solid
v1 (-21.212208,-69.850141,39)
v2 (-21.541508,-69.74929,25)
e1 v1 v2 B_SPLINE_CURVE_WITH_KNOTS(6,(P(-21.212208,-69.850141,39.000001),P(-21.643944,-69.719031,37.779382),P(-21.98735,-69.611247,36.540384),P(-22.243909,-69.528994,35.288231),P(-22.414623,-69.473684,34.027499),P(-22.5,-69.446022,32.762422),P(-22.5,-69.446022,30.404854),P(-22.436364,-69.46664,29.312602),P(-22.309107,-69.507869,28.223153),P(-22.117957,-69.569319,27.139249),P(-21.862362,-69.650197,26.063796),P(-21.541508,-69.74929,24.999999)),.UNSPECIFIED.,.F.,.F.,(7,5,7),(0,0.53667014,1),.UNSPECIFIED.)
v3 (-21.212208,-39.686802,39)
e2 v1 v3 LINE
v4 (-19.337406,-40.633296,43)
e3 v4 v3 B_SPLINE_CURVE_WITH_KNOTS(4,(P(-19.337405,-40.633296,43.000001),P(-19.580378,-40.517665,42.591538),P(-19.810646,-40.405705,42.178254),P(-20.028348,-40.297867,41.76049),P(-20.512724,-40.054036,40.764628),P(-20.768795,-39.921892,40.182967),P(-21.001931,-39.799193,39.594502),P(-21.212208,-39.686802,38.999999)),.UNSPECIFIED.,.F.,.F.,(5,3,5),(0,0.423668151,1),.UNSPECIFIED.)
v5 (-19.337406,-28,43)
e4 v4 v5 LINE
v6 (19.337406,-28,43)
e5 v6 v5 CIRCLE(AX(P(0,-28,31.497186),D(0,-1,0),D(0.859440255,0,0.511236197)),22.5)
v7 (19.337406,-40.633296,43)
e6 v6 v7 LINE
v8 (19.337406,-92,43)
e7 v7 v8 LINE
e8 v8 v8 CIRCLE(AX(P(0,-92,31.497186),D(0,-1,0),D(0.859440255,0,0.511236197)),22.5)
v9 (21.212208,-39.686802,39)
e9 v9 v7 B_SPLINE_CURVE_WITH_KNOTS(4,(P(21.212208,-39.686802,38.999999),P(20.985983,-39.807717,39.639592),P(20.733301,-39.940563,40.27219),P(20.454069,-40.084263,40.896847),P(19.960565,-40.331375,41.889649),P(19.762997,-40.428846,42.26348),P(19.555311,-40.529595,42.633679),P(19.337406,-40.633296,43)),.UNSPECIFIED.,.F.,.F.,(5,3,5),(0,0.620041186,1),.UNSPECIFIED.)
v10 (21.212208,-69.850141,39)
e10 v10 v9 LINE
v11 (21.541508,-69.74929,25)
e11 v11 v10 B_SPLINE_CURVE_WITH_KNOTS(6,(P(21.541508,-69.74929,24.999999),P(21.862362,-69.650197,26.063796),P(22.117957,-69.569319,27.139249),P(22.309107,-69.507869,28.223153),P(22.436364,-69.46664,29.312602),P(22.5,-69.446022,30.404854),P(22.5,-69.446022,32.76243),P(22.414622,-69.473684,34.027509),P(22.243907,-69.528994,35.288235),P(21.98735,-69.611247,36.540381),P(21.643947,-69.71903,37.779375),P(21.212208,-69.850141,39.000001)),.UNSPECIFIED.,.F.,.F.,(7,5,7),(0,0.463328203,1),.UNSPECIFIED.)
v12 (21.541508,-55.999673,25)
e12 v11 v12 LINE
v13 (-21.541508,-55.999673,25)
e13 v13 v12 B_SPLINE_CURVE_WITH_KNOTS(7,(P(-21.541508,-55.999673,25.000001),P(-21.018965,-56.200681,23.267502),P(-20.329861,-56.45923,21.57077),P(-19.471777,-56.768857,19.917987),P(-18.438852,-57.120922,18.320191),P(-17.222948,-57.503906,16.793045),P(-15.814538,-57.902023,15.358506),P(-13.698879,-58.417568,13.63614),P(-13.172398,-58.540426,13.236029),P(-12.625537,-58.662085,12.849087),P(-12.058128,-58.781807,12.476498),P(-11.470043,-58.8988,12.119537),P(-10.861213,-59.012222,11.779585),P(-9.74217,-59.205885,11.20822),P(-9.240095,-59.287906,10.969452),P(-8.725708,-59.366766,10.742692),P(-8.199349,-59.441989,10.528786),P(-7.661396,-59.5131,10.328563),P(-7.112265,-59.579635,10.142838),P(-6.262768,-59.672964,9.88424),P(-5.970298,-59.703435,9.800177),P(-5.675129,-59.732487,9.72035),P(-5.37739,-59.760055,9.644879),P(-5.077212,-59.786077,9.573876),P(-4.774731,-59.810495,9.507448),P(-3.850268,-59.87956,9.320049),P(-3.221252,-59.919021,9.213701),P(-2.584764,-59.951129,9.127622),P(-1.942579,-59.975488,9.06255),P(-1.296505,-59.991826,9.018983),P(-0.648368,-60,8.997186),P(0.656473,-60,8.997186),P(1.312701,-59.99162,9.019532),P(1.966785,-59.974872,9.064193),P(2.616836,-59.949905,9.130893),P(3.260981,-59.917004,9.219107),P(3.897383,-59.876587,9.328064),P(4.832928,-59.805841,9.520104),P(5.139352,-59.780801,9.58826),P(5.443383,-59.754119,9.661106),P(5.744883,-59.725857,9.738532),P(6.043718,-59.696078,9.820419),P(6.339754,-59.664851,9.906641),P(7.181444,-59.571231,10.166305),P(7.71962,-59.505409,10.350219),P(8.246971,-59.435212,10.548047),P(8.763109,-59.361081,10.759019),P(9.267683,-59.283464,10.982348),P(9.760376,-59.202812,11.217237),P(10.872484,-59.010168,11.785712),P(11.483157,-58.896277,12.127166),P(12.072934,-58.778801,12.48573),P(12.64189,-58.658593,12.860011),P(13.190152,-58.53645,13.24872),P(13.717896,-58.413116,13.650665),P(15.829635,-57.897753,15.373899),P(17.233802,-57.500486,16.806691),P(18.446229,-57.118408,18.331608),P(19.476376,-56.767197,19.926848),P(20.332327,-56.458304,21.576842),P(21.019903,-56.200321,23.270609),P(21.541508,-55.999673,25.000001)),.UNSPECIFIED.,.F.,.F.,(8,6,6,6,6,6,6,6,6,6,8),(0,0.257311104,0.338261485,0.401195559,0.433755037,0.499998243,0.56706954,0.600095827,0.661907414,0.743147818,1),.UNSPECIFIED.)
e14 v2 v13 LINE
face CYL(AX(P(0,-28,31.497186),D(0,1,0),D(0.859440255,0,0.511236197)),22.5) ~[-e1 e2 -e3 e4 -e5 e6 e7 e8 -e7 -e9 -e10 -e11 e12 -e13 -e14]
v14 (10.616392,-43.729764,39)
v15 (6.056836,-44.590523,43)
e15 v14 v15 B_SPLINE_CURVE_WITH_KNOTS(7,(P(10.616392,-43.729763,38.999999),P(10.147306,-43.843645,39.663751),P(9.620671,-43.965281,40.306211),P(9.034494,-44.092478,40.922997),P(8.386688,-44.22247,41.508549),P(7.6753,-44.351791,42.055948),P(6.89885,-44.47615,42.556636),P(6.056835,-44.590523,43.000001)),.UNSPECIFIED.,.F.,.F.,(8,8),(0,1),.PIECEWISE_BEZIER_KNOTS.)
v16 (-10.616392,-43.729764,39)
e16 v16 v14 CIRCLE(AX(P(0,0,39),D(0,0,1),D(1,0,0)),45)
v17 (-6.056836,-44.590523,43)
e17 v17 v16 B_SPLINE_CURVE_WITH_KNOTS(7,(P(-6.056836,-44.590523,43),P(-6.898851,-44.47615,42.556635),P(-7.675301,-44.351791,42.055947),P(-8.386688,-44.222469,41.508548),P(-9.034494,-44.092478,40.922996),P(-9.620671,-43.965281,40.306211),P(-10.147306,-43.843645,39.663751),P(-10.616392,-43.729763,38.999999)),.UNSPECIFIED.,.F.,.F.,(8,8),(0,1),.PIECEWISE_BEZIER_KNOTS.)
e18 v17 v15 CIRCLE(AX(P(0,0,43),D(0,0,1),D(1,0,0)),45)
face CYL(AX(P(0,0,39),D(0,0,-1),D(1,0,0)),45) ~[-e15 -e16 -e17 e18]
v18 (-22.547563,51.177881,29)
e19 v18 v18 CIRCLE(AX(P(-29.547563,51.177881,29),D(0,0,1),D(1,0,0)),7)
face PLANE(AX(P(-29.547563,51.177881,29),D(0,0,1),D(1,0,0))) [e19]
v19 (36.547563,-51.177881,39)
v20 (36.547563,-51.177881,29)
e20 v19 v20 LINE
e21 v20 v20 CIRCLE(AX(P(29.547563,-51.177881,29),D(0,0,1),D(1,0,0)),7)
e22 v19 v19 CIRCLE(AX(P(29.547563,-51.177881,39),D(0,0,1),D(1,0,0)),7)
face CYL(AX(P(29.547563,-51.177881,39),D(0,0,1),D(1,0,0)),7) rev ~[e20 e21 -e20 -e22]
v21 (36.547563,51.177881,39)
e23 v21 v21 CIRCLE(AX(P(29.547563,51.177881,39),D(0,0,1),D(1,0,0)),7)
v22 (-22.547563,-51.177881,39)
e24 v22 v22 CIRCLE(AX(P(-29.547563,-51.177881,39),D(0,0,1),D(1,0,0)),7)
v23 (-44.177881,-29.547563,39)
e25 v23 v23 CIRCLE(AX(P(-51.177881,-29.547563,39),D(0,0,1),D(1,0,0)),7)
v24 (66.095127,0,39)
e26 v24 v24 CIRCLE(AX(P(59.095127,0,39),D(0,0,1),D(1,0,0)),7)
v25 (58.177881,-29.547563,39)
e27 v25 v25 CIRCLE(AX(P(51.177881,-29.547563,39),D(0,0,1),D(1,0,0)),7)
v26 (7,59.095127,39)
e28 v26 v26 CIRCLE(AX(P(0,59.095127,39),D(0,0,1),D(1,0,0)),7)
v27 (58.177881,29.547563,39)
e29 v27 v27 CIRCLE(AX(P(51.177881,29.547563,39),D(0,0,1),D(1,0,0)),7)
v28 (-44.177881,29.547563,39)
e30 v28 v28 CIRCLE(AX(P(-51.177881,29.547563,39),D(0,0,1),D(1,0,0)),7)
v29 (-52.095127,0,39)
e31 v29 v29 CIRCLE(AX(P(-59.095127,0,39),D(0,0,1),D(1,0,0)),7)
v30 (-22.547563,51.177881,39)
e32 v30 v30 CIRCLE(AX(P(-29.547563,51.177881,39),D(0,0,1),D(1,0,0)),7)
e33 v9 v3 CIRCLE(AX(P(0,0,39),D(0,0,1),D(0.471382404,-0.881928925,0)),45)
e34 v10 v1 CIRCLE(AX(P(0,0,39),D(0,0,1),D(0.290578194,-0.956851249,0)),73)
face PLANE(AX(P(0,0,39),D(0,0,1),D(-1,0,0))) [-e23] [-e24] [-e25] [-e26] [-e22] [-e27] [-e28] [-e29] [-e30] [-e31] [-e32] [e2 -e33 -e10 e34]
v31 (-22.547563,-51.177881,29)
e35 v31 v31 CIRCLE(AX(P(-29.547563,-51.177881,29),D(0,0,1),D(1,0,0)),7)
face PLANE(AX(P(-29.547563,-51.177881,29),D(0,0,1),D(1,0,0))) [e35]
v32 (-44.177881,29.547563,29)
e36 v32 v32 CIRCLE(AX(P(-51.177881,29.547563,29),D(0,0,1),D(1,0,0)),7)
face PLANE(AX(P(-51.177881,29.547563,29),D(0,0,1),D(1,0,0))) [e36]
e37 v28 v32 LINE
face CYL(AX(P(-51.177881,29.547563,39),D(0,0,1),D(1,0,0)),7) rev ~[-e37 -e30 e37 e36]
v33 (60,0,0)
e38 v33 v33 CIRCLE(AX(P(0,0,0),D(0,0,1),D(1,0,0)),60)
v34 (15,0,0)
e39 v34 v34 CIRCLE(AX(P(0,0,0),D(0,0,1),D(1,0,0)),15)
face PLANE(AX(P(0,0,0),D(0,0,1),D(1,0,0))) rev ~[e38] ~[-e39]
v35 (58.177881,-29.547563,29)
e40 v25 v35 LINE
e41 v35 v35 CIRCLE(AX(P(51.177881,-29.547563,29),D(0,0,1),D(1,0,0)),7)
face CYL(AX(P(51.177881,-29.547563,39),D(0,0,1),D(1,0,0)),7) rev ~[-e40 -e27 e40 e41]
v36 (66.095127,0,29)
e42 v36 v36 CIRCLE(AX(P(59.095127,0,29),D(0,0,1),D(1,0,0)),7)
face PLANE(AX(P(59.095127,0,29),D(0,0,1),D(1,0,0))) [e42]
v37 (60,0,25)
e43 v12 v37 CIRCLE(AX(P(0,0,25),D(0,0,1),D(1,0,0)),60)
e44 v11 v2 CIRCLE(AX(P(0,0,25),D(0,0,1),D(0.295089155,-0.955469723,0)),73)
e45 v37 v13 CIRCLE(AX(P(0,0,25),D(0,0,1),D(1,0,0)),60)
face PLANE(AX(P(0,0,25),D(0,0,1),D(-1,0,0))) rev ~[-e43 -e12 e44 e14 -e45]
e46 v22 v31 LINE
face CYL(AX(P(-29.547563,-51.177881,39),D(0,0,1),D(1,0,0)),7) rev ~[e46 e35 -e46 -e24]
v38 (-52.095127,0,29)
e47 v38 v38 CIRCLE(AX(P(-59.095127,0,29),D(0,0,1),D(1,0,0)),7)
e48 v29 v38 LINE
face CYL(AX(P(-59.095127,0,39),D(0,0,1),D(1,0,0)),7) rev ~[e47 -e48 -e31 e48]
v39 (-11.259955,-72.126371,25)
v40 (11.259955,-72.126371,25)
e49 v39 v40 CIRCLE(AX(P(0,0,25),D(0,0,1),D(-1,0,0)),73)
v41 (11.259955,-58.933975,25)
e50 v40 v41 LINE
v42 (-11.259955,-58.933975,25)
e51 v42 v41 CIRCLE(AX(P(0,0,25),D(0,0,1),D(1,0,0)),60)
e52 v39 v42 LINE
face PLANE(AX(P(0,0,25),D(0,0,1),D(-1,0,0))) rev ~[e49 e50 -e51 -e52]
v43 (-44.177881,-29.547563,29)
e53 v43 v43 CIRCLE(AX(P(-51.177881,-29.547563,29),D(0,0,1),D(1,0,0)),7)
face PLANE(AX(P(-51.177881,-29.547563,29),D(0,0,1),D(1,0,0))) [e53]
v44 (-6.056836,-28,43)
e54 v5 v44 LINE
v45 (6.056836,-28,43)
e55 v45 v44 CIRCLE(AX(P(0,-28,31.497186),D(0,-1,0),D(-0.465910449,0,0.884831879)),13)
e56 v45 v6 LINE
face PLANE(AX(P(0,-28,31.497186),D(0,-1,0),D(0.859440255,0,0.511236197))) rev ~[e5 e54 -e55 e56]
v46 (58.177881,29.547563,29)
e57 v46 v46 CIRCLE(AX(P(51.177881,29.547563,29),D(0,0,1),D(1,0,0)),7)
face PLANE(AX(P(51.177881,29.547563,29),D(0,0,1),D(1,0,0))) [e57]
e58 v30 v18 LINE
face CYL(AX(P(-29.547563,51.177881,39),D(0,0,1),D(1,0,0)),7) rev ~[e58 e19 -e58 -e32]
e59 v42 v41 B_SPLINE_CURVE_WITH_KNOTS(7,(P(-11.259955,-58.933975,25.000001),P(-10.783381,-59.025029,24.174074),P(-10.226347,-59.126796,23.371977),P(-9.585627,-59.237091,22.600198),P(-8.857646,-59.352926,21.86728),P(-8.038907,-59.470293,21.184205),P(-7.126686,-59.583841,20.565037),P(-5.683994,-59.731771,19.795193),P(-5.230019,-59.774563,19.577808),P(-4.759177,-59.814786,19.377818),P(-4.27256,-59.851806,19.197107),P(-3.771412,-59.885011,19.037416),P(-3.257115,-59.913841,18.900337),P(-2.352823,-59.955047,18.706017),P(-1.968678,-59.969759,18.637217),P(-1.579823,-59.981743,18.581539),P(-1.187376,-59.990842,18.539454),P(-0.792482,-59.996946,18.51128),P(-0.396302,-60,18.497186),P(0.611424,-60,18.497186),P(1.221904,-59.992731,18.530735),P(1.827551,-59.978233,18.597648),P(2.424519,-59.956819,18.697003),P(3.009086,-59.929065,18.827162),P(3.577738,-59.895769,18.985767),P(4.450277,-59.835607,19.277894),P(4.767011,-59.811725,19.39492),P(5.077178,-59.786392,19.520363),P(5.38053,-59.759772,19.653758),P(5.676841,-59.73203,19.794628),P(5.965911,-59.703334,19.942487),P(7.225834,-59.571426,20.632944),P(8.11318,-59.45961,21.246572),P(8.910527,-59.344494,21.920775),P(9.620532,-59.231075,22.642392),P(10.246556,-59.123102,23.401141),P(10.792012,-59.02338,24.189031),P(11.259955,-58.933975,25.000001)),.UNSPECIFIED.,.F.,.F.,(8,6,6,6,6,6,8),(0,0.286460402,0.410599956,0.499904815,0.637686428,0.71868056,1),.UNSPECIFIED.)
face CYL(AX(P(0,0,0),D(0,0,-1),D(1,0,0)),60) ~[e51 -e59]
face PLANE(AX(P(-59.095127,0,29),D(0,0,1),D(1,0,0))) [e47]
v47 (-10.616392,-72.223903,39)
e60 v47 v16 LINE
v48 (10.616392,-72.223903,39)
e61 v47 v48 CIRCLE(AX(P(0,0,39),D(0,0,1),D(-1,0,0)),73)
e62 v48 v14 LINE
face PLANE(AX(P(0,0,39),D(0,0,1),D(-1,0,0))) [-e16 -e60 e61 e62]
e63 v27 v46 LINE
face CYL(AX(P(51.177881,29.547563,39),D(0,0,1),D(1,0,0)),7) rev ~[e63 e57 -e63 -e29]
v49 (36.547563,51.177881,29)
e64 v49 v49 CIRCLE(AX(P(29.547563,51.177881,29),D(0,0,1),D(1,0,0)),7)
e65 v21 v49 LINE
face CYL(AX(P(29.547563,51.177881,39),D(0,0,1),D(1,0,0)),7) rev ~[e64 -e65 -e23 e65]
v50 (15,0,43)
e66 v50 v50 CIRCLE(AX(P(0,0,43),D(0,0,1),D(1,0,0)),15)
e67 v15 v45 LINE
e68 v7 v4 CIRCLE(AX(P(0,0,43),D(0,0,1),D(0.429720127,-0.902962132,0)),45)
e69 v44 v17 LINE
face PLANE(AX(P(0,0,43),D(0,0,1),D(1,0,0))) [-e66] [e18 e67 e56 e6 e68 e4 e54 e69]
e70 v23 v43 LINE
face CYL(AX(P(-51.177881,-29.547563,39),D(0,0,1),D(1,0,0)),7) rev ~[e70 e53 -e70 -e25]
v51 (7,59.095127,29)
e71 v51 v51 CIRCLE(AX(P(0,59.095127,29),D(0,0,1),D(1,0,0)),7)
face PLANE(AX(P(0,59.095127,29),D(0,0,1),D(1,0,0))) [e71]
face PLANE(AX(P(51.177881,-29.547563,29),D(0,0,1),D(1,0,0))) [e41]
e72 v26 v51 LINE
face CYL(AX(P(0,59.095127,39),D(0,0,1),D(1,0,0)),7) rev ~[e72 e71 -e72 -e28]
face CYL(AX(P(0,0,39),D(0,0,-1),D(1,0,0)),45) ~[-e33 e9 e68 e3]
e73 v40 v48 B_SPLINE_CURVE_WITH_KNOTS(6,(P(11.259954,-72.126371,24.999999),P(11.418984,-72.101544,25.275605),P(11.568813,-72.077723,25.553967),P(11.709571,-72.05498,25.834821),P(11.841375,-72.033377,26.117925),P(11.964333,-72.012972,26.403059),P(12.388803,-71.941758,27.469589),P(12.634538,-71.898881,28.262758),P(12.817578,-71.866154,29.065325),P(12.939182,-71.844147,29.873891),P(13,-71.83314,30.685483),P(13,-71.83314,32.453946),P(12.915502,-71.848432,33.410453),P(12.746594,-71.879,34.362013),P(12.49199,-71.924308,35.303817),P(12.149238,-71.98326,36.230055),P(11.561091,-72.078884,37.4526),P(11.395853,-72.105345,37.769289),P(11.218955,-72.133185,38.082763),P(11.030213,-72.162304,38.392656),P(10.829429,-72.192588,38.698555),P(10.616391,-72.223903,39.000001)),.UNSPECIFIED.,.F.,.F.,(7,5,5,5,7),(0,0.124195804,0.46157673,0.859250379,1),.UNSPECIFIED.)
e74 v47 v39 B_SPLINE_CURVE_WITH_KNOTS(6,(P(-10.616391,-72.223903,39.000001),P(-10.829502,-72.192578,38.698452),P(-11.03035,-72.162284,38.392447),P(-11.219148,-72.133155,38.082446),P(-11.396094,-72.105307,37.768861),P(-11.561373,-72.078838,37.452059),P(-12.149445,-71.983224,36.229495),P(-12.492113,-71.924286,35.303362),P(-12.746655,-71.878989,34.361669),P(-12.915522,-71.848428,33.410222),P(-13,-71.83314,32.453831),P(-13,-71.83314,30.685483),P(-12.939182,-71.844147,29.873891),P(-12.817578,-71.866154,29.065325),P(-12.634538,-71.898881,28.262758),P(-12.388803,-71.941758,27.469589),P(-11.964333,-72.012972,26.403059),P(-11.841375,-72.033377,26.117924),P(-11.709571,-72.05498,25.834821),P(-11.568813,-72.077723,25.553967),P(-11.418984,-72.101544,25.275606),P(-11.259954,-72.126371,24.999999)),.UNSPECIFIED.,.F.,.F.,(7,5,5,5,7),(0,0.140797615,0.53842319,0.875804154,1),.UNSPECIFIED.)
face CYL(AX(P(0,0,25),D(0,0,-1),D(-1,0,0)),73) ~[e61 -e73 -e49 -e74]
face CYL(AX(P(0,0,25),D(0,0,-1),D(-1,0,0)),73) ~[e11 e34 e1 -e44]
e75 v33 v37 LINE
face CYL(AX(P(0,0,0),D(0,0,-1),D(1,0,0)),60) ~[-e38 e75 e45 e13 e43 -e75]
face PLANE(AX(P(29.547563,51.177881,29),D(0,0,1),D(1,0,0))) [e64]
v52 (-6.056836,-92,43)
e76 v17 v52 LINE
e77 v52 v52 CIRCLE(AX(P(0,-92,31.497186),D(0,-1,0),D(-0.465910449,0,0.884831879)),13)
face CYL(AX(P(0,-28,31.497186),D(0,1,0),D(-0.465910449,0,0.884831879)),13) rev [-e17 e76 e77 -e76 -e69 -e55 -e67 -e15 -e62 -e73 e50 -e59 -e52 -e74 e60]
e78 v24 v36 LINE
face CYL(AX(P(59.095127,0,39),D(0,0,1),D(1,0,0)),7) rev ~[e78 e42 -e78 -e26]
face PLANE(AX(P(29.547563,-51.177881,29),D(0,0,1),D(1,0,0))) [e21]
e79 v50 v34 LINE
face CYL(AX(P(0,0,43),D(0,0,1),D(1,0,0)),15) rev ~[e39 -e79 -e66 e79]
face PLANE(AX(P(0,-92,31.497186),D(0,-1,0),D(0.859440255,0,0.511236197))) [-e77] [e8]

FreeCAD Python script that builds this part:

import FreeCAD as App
import Part
import Sketcher
Q = App.Units.Quantity

doc = App.newDocument("Part")
body = doc.addObject("PartDesign::Body", "Body")

sketch1 = doc.addObject("Sketcher::SketchObject", "Sketch")
body.addObject(sketch1)
sketch1.AttachmentSupport = (doc.XY_Plane, [""])
sketch1.MapMode = "FlatFace"
sketch1.addGeometry(Part.Circle(App.Vector(0, 0, 0), App.Vector(0, 0, 1), 60), False)
sketch1.addConstraint([
    Sketcher.Constraint("Coincident", 0, 3, -1, 1),
    Sketcher.Constraint("Diameter", 0, Q("120 mm")),
])
pad1 = doc.addObject("PartDesign::Pad", "Pad")
body.addObject(pad1)
pad1.Profile = sketch1
pad1.Length = 25

sketch2 = doc.addObject("Sketcher::SketchObject", "Sketch001")
body.addObject(sketch2)
sketch2.AttachmentSupport = (doc.XY_Plane, [""])
sketch2.MapMode = "FlatFace"
sketch2.AttachmentOffset = App.Placement(App.Vector(0, 0, 25), App.Rotation())
sketch2.addGeometry(Part.Circle(App.Vector(0, 0, 0), App.Vector(0, 0, 1), 73), False)
sketch2.addConstraint([
    Sketcher.Constraint("Coincident", 0, 3, -1, 1),
    Sketcher.Constraint("Diameter", 0, Q("146 mm")),
])
pad2 = doc.addObject("PartDesign::Pad", "Pad001")
body.addObject(pad2)
pad2.Profile = sketch2
pad2.Length = 14

sketch3 = doc.addObject("Sketcher::SketchObject", "Sketch002")
body.addObject(sketch3)
sketch3.AttachmentSupport = (doc.XY_Plane, [""])
sketch3.MapMode = "FlatFace"
sketch3.AttachmentOffset = App.Placement(App.Vector(0, 0, 39), App.Rotation())
sketch3.addGeometry(Part.Circle(App.Vector(0, 0, 0), App.Vector(0, 0, 1), 45), False)
sketch3.addConstraint([
    Sketcher.Constraint("Coincident", 0, 3, -1, 1),
    Sketcher.Constraint("Diameter", 0, Q("90 mm")),
])
pad3 = doc.addObject("PartDesign::Pad", "Pad002")
body.addObject(pad3)
pad3.Profile = sketch3
pad3.Length = 4

sketch4 = doc.addObject("Sketcher::SketchObject", "Sketch003")
body.addObject(sketch4)
sketch4.AttachmentSupport = (doc.XY_Plane, [""])
sketch4.MapMode = "FlatFace"
sketch4.AttachmentOffset = App.Placement(App.Vector(0, 0, 43), App.Rotation())
sketch4.addGeometry(Part.Circle(App.Vector(0, 0, 0), App.Vector(0, 0, 1), 15), False)
sketch4.addConstraint([
    Sketcher.Constraint("Coincident", 0, 3, -1, 1),
    Sketcher.Constraint("Diameter", 0, Q("30 mm")),
])
pocket1 = doc.addObject("PartDesign::Pocket", "Pocket")
body.addObject(pocket1)
pocket1.Profile = sketch4
pocket1.Length = 99

sketch5 = doc.addObject("Sketcher::SketchObject", "Sketch004")
body.addObject(sketch5)
sketch5.AttachmentSupport = (doc.XY_Plane, [""])
sketch5.MapMode = "FlatFace"
sketch5.AttachmentOffset = App.Placement(App.Vector(0, 0, 39), App.Rotation())
sketch5.addGeometry([
    Part.Circle(App.Vector(0, 59, 0), App.Vector(0, 0, 1), 7),
    Part.Circle(App.Vector(30, 51, 0), App.Vector(0, 0, 1), 7),
    Part.Circle(App.Vector(51, 30, 0), App.Vector(0, 0, 1), 7),
    Part.Circle(App.Vector(59, 0, 0), App.Vector(0, 0, 1), 7),
    Part.Circle(App.Vector(51, -30, 0), App.Vector(0, 0, 1), 7),
    Part.Circle(App.Vector(30, -51, 0), App.Vector(0, 0, 1), 7),
    Part.Circle(App.Vector(-30, -51, 0), App.Vector(0, 0, 1), 7),
    Part.Circle(App.Vector(-51, -30, 0), App.Vector(0, 0, 1), 7),
    Part.Circle(App.Vector(-59, 0, 0), App.Vector(0, 0, 1), 7),
    Part.Circle(App.Vector(-51, 30, 0), App.Vector(0, 0, 1), 7),
    Part.Circle(App.Vector(-30, 51, 0), App.Vector(0, 0, 1), 7),
], False)
sketch5.addConstraint([
    Sketcher.Constraint("Equal", 0, 1),
    Sketcher.Constraint("Equal", 1, 2),
    Sketcher.Constraint("Equal", 2, 3),
    Sketcher.Constraint("Equal", 3, 4),
    Sketcher.Constraint("Equal", 4, 5),
    Sketcher.Constraint("Equal", 5, 6),
    Sketcher.Constraint("Equal", 6, 7),
    Sketcher.Constraint("Equal", 7, 8),
    Sketcher.Constraint("Equal", 8, 9),
    Sketcher.Constraint("Equal", 9, 10),
    Sketcher.Constraint("Symmetric", 1, 3, 6, 3, -1, 1),
    Sketcher.Constraint("Symmetric", 2, 3, 7, 3, -1, 1),
    Sketcher.Constraint("Symmetric", 3, 3, 8, 3, -1, 1),
    Sketcher.Constraint("Symmetric", 4, 3, 9, 3, -1, 1),
    Sketcher.Constraint("Symmetric", 5, 3, 10, 3, -1, 1),
    Sketcher.Constraint("Symmetric", 5, 3, 6, 3, -2),
    Sketcher.Constraint("Symmetric", 4, 3, 7, 3, -2),
    Sketcher.Constraint("PointOnObject", 0, 3, -2),
    Sketcher.Constraint("PointOnObject", 3, 3, -1),
    Sketcher.Constraint("Diameter", 0, Q("14 mm")),
    Sketcher.Constraint("DistanceY", -1, 1, 1, 3, Q("51.177881 mm")),
    Sketcher.Constraint("DistanceX", -1, 1, 2, 3, Q("51.177881 mm")),
    Sketcher.Constraint("DistanceY", 4, 3, 0, 3, Q("88.64269 mm")),
    Sketcher.Constraint("DistanceY", 5, 3, 0, 3, Q("110.273008 mm")),
    Sketcher.Constraint("DistanceX", 6, 3, 3, 3, Q("88.64269 mm")),
    Sketcher.Constraint("DistanceX", -1, 1, 1, 3, Q("29.547563 mm")),
])
pocket2 = doc.addObject("PartDesign::Pocket", "Pocket001")
body.addObject(pocket2)
pocket2.Profile = sketch5
pocket2.Length = 10

sketch6 = doc.addObject("Sketcher::SketchObject", "Sketch005")
body.addObject(sketch6)
sketch6.AttachmentSupport = (doc.XZ_Plane, [""])
sketch6.MapMode = "FlatFace"
sketch6.AttachmentOffset = App.Placement(App.Vector(0, 0, 73), App.Rotation())
sketch6.addGeometry([
    Part.Circle(App.Vector(0, 31, 0), App.Vector(0, 0, 1), 22),
    Part.Circle(App.Vector(0, 31, 0), App.Vector(0, 0, 1), 13),
], False)
sketch6.addConstraint([
    Sketcher.Constraint("Coincident", 1, 3, 0, 3),
    Sketcher.Constraint("PointOnObject", 0, 3, -2),
    Sketcher.Constraint("Diameter", 0, Q("45 mm")),
    Sketcher.Constraint("Diameter", 1, Q("26 mm")),
    Sketcher.Constraint("DistanceY", -1, 1, 0, 3, Q("31.497186 mm")),
])
pad4 = doc.addObject("PartDesign::Pad", "Pad003")
body.addObject(pad4)
pad4.Profile = sketch6
pad4.Type = "TwoLengths"
pad4.Length = 19
pad4.Length2 = 45

doc.recompute()
